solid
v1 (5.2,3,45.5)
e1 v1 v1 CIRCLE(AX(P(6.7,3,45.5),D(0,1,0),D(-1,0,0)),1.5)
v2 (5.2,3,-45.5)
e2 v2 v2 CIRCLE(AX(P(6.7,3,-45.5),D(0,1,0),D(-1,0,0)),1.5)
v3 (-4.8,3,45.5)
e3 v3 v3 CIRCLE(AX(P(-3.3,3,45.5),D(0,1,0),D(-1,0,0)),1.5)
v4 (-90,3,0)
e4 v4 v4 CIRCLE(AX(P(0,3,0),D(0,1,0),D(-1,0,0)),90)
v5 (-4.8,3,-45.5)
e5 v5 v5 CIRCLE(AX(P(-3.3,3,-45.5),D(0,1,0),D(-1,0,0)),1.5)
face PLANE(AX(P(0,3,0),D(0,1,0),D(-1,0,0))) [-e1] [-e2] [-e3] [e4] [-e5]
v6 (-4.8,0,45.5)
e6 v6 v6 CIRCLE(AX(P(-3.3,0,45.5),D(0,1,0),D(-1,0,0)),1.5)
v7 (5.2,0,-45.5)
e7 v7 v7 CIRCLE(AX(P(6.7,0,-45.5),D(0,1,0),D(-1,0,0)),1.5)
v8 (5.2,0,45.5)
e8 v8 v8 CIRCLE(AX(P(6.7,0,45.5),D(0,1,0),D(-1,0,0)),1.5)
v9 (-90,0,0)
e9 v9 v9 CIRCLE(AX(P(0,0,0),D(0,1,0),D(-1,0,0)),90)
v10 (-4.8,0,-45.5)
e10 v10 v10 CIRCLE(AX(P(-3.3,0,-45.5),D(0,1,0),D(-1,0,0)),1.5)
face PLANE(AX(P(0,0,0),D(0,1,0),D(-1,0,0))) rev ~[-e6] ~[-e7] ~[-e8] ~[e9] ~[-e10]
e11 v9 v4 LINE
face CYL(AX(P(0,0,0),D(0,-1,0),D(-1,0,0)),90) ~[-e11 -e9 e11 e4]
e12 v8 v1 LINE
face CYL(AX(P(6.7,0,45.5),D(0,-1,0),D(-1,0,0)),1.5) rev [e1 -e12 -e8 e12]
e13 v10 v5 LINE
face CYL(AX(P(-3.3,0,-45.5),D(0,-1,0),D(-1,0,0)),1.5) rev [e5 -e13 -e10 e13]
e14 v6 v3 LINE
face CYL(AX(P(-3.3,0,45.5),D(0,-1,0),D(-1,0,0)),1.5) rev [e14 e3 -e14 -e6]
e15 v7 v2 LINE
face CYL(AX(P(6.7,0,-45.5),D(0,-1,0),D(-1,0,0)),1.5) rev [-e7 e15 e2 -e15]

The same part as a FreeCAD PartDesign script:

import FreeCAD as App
import Part
import Sketcher

V = App.Vector
Q = App.Units.Quantity

doc = App.newDocument("Part")
body = doc.addObject("PartDesign::Body", "Body")

# Sketch on XZ plane
sketch1 = body.newObject("Sketcher::SketchObject", "Sketch")
sketch1.AttachmentSupport = (doc.getObject("XZ_Plane"), [""])
sketch1.MapMode = "FlatFace"
sketch1.addGeometry(Part.Circle(V(0, 0, 0), V(0, 0, 1), 90), False)
sketch1.addGeometry(Part.Circle(V(6.7, -45.5, 0), V(0, 0, 1), 1.5), False)
sketch1.addGeometry(Part.Circle(V(-3.3, -45.5, 0), V(0, 0, 1), 1.5), False)
sketch1.addGeometry(Part.Circle(V(6.7, 45.5, 0), V(0, 0, 1), 1.5), False)
sketch1.addGeometry(Part.Circle(V(-3.3, 45.5, 0), V(0, 0, 1), 1.5), False)
sketch1.addConstraint(Sketcher.Constraint("Coincident", 0, 3, -1, 1))
sketch1.addConstraint(Sketcher.Constraint("Equal", 1, 2))
sketch1.addConstraint(Sketcher.Constraint("Equal", 2, 3))
sketch1.addConstraint(Sketcher.Constraint("Equal", 3, 4))
sketch1.addConstraint(Sketcher.Constraint("Symmetric", 1, 3, 3, 3, -1))
sketch1.addConstraint(Sketcher.Constraint("Symmetric", 2, 3, 4, 3, -1))
sketch1.addConstraint(Sketcher.Constraint("Horizontal", 1, 3, 2, 3))
sketch1.addConstraint(Sketcher.Constraint("Diameter", 0, Q("180 mm")))
sketch1.addConstraint(Sketcher.Constraint("Diameter", 1, Q("3 mm")))
sketch1.addConstraint(Sketcher.Constraint("DistanceX", 2, 3, 1, 3, Q("10 mm")))
sketch1.addConstraint(Sketcher.Constraint("DistanceY", 1, 3, -1, 1, Q("45.5 mm")))
sketch1.addConstraint(Sketcher.Constraint("DistanceX", 2, 3, -1, 1, Q("3.3 mm")))
pad1 = body.newObject("PartDesign::Pad", "Pad")
pad1.Profile = sketch1
pad1.Length = 3
pad1.Reversed = True

doc.recompute()
